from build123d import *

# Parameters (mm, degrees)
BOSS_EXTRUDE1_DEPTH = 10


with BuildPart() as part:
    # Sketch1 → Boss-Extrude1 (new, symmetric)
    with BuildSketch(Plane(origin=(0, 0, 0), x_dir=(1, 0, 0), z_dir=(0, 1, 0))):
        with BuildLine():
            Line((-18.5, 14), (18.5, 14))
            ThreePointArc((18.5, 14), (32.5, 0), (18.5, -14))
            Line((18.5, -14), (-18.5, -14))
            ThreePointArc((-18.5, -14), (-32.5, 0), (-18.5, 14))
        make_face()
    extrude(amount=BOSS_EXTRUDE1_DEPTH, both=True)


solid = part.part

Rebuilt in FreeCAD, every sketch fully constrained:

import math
import FreeCAD as App
import Part
import Sketcher
from FreeCAD import Vector
Q = App.Units.Quantity

doc = App.newDocument("Part")
body = doc.addObject("PartDesign::Body", "Body")

sketch1 = body.newObject("Sketcher::SketchObject", "Sketch")
sketch1.AttachmentSupport = (doc.getObject("XZ_Plane"), [""])
sketch1.MapMode = "FlatFace"
sketch1.addGeometry([
    Part.LineSegment(Vector(18, -14, 0), Vector(-18, -14, 0)),
    Part.ArcOfCircle(Part.Circle(Vector(-18, 0, 0), Vector(0, 0, 1), 14), math.radians(90), math.radians(270)),
    Part.LineSegment(Vector(-18, 14, 0), Vector(18, 14, 0)),
    Part.ArcOfCircle(Part.Circle(Vector(18, 0, 0), Vector(0, 0, 1), 14), math.radians(-90), math.radians(90)),
], False)
sketch1.addConstraint([
    Sketcher.Constraint("Tangent", 0, 2, 1, 2),
    Sketcher.Constraint("Tangent", 1, 1, 2, 1),
    Sketcher.Constraint("Tangent", 2, 2, 3, 2),
    Sketcher.Constraint("Tangent", 3, 1, 0, 1),
    Sketcher.Constraint("Horizontal", 0),
    Sketcher.Constraint("Horizontal", 2),
    Sketcher.Constraint("Symmetric", 1, 3, 3, 3, -1, 1),
    Sketcher.Constraint("Radius", 1, Q("14 mm")),
    Sketcher.Constraint("DistanceX", 0, 2, 0, 1, Q("37 mm")),
])
pad1 = body.newObject("PartDesign::Pad", "Pad")
pad1.Profile = sketch1
pad1.Length = 20
pad1.Midplane = True

doc.recompute()
